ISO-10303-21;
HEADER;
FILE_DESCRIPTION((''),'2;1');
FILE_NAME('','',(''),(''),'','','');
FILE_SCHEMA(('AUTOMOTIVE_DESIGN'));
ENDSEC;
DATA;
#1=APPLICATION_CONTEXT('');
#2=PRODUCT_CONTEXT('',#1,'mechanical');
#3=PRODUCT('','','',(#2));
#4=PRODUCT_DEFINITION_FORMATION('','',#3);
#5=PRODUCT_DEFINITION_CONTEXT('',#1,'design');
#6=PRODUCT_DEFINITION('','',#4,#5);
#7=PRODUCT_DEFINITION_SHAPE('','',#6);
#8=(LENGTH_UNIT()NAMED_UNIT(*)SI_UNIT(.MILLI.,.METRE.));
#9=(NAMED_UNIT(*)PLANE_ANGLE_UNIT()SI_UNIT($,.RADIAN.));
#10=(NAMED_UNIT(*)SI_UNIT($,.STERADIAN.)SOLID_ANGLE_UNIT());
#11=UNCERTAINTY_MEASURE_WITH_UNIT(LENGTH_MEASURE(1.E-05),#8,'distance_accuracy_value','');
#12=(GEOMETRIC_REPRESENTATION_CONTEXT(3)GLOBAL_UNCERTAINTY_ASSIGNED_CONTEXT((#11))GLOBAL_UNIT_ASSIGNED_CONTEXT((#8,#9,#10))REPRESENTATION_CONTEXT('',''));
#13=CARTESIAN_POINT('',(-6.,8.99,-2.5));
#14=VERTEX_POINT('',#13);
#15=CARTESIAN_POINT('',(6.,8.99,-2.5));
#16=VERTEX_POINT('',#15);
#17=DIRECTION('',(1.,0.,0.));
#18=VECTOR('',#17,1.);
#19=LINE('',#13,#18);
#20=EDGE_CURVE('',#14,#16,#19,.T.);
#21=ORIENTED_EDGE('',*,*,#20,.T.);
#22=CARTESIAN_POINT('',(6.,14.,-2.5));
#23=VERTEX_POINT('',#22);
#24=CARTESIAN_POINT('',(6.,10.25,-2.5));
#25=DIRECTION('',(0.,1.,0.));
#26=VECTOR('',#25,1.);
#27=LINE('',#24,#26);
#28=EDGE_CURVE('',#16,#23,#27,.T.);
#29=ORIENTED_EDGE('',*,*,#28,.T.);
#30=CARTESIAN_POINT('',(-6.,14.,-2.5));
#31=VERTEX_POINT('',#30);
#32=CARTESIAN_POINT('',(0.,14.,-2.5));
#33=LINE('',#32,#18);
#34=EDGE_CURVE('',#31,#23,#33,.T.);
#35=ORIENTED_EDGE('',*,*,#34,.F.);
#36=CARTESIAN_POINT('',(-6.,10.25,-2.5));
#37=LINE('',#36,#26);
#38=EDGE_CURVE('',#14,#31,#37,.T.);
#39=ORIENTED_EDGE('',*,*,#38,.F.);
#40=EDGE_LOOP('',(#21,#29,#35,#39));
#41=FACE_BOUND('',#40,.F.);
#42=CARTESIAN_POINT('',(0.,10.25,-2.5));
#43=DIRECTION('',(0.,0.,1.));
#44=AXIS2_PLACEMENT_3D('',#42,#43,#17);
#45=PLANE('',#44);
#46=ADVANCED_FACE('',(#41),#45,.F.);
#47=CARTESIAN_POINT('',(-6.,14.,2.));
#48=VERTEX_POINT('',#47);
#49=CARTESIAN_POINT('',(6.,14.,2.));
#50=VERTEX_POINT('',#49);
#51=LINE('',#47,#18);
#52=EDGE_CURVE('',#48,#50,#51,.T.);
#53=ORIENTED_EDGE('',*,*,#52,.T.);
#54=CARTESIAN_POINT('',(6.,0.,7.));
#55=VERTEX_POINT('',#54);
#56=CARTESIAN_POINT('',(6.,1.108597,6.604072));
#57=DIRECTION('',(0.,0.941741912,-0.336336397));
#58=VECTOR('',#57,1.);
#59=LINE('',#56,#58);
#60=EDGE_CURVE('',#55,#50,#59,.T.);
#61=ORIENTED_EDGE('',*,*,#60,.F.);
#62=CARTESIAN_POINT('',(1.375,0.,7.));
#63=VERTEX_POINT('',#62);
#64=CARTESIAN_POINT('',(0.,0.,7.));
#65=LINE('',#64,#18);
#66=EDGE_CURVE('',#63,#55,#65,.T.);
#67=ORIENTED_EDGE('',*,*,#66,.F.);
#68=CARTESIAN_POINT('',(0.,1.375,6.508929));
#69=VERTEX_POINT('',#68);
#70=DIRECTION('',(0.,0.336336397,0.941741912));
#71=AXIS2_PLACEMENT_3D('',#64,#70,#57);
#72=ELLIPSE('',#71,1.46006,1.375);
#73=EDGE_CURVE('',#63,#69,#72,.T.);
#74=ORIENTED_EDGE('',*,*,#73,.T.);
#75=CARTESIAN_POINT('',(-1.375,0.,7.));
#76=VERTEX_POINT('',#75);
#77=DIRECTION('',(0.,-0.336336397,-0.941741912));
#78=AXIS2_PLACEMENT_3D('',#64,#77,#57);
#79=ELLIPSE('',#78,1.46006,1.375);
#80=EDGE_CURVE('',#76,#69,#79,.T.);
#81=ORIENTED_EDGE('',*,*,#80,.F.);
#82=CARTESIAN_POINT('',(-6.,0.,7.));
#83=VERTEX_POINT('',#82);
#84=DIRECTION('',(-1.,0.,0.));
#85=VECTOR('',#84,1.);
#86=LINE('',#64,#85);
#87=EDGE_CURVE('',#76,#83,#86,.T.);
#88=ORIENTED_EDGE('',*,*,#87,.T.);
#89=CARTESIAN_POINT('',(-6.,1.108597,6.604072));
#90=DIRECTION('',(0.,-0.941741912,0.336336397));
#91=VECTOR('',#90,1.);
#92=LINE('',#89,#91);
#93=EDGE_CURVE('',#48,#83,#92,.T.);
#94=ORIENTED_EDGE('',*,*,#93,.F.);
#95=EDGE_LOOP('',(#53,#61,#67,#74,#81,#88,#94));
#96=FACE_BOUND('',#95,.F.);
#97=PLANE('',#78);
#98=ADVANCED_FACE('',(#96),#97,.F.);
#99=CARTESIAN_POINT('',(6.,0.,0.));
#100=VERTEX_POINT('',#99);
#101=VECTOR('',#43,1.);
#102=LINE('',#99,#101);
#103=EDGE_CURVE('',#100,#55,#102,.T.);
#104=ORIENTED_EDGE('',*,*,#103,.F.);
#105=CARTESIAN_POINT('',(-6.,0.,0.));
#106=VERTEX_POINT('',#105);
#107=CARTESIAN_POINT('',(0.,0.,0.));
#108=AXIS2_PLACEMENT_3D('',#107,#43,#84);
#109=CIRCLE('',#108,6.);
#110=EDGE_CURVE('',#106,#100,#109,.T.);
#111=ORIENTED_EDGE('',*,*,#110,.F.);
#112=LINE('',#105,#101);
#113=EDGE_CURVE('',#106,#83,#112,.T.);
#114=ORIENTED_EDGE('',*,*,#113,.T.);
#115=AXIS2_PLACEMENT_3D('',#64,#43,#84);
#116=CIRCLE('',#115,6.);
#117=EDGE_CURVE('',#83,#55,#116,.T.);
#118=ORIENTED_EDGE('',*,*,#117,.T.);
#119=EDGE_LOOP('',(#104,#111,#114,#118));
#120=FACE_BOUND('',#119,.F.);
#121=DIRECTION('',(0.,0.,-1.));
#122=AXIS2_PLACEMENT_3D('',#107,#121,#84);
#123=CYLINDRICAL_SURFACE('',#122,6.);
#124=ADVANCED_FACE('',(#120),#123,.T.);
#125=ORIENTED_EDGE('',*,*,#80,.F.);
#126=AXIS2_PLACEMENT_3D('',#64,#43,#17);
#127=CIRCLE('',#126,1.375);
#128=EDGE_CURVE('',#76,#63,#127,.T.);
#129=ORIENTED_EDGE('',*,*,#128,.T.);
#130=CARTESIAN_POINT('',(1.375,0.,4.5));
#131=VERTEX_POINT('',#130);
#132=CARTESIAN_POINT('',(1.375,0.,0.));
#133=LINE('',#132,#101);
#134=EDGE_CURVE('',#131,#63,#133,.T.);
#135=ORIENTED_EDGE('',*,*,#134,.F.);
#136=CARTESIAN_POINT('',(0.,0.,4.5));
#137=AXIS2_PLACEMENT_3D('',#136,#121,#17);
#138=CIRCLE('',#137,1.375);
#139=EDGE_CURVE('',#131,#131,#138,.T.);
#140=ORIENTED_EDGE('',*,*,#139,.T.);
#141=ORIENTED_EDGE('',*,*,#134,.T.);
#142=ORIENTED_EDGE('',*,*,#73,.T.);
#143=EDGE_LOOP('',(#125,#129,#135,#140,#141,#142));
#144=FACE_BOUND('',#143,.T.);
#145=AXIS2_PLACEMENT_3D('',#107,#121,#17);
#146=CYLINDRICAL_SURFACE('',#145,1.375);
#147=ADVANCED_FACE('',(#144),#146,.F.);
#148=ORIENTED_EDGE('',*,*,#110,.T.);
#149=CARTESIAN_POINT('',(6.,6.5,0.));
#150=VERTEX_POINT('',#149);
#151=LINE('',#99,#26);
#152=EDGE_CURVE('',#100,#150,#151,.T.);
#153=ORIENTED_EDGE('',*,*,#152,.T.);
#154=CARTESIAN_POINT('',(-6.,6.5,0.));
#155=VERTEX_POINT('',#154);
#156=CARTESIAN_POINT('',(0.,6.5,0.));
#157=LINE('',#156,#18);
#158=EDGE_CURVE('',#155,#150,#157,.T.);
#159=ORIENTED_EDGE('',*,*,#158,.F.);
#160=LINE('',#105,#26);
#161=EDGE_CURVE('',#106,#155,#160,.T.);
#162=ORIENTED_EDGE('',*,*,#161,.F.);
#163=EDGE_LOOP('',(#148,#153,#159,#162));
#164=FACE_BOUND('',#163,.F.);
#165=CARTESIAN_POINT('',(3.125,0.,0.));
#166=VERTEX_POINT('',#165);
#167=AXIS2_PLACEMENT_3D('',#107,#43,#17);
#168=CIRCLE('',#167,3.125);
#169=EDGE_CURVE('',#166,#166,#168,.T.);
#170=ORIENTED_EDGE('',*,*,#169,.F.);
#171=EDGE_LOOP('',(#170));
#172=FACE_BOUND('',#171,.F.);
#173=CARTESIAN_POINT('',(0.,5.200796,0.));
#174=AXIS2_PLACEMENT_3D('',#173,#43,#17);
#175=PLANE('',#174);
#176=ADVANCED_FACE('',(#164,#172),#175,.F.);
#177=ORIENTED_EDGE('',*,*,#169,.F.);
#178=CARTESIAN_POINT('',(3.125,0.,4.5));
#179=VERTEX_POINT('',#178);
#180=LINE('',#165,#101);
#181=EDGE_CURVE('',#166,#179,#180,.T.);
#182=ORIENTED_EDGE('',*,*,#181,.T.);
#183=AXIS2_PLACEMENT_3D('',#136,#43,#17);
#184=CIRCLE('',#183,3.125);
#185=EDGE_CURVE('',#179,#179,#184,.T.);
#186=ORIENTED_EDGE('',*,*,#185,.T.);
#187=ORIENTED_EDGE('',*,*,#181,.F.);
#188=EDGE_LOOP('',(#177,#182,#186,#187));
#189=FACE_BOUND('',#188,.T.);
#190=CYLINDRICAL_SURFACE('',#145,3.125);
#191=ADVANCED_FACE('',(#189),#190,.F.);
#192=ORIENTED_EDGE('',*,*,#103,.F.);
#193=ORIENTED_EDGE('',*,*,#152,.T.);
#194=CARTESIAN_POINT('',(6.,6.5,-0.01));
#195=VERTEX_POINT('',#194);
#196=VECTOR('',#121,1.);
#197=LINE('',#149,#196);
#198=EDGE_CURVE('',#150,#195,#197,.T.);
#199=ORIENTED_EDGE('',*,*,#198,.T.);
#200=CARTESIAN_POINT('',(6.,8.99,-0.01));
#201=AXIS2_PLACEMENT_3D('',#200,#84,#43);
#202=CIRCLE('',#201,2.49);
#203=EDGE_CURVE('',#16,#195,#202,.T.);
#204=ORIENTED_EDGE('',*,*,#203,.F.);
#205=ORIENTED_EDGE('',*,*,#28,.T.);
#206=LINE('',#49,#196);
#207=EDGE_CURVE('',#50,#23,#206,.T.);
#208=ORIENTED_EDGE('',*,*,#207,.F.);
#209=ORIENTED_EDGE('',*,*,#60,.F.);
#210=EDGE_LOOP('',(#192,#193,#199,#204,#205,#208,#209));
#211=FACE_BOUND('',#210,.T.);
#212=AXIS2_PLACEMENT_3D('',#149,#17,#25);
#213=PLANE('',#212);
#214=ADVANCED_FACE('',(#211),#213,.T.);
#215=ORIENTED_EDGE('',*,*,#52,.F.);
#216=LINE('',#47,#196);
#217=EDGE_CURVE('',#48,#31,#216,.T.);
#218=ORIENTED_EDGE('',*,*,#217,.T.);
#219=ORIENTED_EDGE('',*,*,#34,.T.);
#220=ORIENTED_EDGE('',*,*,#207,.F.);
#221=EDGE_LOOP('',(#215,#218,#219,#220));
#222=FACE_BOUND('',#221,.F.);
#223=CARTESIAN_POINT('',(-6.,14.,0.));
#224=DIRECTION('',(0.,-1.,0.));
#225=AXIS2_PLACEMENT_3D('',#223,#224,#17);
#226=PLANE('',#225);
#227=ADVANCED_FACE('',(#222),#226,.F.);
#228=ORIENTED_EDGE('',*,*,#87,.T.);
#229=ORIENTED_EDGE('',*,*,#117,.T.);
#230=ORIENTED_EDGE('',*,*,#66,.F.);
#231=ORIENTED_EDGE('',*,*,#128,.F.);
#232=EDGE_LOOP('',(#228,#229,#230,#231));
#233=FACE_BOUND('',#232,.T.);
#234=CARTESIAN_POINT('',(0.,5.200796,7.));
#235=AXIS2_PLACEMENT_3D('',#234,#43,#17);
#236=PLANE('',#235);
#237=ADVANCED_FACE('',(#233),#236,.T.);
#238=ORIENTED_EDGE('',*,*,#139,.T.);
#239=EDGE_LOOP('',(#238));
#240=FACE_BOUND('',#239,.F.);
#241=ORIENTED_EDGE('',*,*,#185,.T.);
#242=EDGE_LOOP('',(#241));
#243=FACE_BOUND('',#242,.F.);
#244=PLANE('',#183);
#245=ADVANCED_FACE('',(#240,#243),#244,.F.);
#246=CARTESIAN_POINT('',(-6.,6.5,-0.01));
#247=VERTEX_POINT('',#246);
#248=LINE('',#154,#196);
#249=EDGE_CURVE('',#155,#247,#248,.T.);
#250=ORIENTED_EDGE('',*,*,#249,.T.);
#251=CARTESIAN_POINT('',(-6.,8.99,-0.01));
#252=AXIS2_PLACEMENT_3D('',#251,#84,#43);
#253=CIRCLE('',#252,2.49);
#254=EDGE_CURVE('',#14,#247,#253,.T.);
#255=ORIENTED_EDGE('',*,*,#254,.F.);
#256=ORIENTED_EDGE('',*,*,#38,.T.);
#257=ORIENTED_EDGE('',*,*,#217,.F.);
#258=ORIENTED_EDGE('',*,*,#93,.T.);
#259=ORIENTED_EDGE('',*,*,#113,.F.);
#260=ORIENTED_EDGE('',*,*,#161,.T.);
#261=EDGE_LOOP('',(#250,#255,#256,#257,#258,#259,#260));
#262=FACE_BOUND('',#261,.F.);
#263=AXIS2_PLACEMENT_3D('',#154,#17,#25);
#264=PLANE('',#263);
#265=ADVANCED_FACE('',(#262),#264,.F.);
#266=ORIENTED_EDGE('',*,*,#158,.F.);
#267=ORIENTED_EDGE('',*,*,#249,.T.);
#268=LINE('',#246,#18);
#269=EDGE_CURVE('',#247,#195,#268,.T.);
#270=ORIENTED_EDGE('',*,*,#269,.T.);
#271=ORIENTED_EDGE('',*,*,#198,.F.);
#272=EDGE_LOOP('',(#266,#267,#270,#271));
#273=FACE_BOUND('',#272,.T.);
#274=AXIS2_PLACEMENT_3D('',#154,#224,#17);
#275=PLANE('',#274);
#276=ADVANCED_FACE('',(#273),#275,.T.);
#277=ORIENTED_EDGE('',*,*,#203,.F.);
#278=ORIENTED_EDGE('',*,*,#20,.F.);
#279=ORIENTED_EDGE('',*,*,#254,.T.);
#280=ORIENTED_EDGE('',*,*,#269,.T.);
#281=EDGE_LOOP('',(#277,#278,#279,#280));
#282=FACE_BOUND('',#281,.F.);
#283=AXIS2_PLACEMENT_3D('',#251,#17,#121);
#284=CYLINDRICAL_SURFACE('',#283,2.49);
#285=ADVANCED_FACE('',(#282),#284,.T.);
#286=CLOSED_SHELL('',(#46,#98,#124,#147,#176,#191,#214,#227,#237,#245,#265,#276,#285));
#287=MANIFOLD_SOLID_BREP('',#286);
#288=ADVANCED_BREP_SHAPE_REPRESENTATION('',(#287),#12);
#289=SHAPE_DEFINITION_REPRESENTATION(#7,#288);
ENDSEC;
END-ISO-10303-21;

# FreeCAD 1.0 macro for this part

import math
import FreeCAD as App
import Part
import Sketcher

V = App.Vector
Q = App.Units.Quantity


def edges_at(feature, points):
    """Names of the edges that pass closest to the given points."""
    edges = feature.Shape.Edges
    near = lambda p: min(range(len(edges)), key=lambda i: edges[i].distToShape(Part.Vertex(*p))[0])
    return sorted({f"Edge{near(p) + 1}" for p in points})

doc = App.newDocument("Part")
body = doc.addObject("PartDesign::Body", "Body")

# Sketch on XY plane
sketch1 = body.newObject("Sketcher::SketchObject", "Sketch")
sketch1.AttachmentSupport = (doc.getObject("XY_Plane"), [""])
sketch1.MapMode = "FlatFace"
sketch1.addGeometry([
    Part.ArcOfCircle(Part.Circle(V(0, 0, 0), V(0, 0, 1), 6), math.radians(180), math.radians(360)),  # 0
    Part.LineSegment(V(6, 0, 0), V(6, 14, 0)),  # 1
    Part.LineSegment(V(6, 14, 0), V(-6, 14, 0)),  # 2
    Part.LineSegment(V(-6, 14, 0), V(-6, 0, 0)),  # 3
    Part.Circle(V(0, 0, 0), V(0, 0, 1), 1.4),  # 4
], False)
sketch1.addConstraint([
    Sketcher.Constraint("Tangent", 0, 2, 1, 1),
    Sketcher.Constraint("Coincident", 1, 2, 2, 1),
    Sketcher.Constraint("Coincident", 2, 2, 3, 1),
    Sketcher.Constraint("Tangent", 3, 2, 0, 1),
    Sketcher.Constraint("Vertical", 1),
    Sketcher.Constraint("Horizontal", 2),
    Sketcher.Constraint("Vertical", 3),
    Sketcher.Constraint("Coincident", 0, 3, -1, 1),
    Sketcher.Constraint("Coincident", 4, 3, -1, 1),
    Sketcher.Constraint("Radius", 0, Q("6 mm")),
    Sketcher.Constraint("Diameter", 4, Q("2.75 mm")),
    Sketcher.Constraint("DistanceY", 1, 1, 1, 2, Q("14 mm")),
])
pad1 = body.newObject("PartDesign::Pad", "Pad")
pad1.Profile = sketch1
pad1.Length = 7

# Sketch on YZ plane
sketch2 = body.newObject("Sketcher::SketchObject", "Sketch001")
sketch2.AttachmentSupport = (doc.getObject("YZ_Plane"), [""])
sketch2.MapMode = "FlatFace"
sketch2.addGeometry([
    Part.LineSegment(V(0, 7, 0), V(14, 2, 0)),
    Part.LineSegment(V(14, 2, 0), V(14, 15, 0)),
    Part.LineSegment(V(14, 15, 0), V(0, 7, 0)),
], False)
sketch2.addConstraint([
    Sketcher.Constraint("Coincident", 0, 2, 1, 1),
    Sketcher.Constraint("Coincident", 1, 2, 2, 1),
    Sketcher.Constraint("Coincident", 2, 2, 0, 1),
    Sketcher.Constraint("Vertical", 1),
    Sketcher.Constraint("PointOnObject", 2, 2, -2),
    Sketcher.Constraint("DistanceX", -1, 1, 0, 2, Q("14 mm")),
    Sketcher.Constraint("DistanceY", -1, 1, 0, 2, Q("2 mm")),
    Sketcher.Constraint("DistanceY", -1, 1, 2, 2, Q("7 mm")),
    Sketcher.Constraint("Distance", 2, Q("16.239619 mm")),
])
pocket1 = body.newObject("PartDesign::Pocket", "Pocket")
pocket1.Profile = sketch2
pocket1.Type = "ThroughAll"
pocket1.Midplane = True

# Sketch on XY plane
sketch3 = body.newObject("Sketcher::SketchObject", "Sketch002")
sketch3.AttachmentSupport = (doc.getObject("XY_Plane"), [""])
sketch3.MapMode = "FlatFace"
sketch3.addGeometry(Part.Circle(V(0, 0, 0), V(0, 0, 1), 3.1), False)
sketch3.addConstraint([
    Sketcher.Constraint("Coincident", 0, 3, -1, 1),
    Sketcher.Constraint("Diameter", 0, Q("6.25 mm")),
])
pocket2 = body.newObject("PartDesign::Pocket", "Pocket001")
pocket2.Profile = sketch3
pocket2.Length = 4.5
pocket2.Reversed = True

# Sketch on XY plane
sketch4 = body.newObject("Sketcher::SketchObject", "Sketch003")
sketch4.AttachmentSupport = (doc.getObject("XY_Plane"), [""])
sketch4.MapMode = "FlatFace"
sketch4.addGeometry([
    Part.LineSegment(V(-6, 14, 0), V(-6, 6, 0)),
    Part.LineSegment(V(-6, 6, 0), V(6, 6, 0)),
    Part.LineSegment(V(6, 6, 0), V(6, 14, 0)),
    Part.LineSegment(V(6, 14, 0), V(-6, 14, 0)),
], False)
sketch4.addConstraint([
    Sketcher.Constraint("Coincident", 0, 2, 1, 1),
    Sketcher.Constraint("Coincident", 1, 2, 2, 1),
    Sketcher.Constraint("Coincident", 2, 2, 3, 1),
    Sketcher.Constraint("Coincident", 3, 2, 0, 1),
    Sketcher.Constraint("Vertical", 0),
    Sketcher.Constraint("Horizontal", 1),
    Sketcher.Constraint("Vertical", 2),
    Sketcher.Constraint("Horizontal", 3),
    Sketcher.Constraint("DistanceX", 1, 1, 1, 2, Q("12 mm")),
    Sketcher.Constraint("DistanceY", 0, 2, 0, 1, Q("7.5 mm")),
    Sketcher.Constraint("DistanceX", 0, 2, -1, 1, Q("6 mm")),
    Sketcher.Constraint("DistanceY", -1, 1, 2, 2, Q("14 mm")),
])
pad2 = body.newObject("PartDesign::Pad", "Pad001")
pad2.Profile = sketch4
pad2.Length = 2.5
pad2.Reversed = True
doc.recompute()

fillet = body.newObject("PartDesign::Fillet", "Fillet")
fillet.Base = (pad2, edges_at(pad2, [(0, 6.5, -2.5)]))
fillet.Radius = 2.49

doc.recompute()
